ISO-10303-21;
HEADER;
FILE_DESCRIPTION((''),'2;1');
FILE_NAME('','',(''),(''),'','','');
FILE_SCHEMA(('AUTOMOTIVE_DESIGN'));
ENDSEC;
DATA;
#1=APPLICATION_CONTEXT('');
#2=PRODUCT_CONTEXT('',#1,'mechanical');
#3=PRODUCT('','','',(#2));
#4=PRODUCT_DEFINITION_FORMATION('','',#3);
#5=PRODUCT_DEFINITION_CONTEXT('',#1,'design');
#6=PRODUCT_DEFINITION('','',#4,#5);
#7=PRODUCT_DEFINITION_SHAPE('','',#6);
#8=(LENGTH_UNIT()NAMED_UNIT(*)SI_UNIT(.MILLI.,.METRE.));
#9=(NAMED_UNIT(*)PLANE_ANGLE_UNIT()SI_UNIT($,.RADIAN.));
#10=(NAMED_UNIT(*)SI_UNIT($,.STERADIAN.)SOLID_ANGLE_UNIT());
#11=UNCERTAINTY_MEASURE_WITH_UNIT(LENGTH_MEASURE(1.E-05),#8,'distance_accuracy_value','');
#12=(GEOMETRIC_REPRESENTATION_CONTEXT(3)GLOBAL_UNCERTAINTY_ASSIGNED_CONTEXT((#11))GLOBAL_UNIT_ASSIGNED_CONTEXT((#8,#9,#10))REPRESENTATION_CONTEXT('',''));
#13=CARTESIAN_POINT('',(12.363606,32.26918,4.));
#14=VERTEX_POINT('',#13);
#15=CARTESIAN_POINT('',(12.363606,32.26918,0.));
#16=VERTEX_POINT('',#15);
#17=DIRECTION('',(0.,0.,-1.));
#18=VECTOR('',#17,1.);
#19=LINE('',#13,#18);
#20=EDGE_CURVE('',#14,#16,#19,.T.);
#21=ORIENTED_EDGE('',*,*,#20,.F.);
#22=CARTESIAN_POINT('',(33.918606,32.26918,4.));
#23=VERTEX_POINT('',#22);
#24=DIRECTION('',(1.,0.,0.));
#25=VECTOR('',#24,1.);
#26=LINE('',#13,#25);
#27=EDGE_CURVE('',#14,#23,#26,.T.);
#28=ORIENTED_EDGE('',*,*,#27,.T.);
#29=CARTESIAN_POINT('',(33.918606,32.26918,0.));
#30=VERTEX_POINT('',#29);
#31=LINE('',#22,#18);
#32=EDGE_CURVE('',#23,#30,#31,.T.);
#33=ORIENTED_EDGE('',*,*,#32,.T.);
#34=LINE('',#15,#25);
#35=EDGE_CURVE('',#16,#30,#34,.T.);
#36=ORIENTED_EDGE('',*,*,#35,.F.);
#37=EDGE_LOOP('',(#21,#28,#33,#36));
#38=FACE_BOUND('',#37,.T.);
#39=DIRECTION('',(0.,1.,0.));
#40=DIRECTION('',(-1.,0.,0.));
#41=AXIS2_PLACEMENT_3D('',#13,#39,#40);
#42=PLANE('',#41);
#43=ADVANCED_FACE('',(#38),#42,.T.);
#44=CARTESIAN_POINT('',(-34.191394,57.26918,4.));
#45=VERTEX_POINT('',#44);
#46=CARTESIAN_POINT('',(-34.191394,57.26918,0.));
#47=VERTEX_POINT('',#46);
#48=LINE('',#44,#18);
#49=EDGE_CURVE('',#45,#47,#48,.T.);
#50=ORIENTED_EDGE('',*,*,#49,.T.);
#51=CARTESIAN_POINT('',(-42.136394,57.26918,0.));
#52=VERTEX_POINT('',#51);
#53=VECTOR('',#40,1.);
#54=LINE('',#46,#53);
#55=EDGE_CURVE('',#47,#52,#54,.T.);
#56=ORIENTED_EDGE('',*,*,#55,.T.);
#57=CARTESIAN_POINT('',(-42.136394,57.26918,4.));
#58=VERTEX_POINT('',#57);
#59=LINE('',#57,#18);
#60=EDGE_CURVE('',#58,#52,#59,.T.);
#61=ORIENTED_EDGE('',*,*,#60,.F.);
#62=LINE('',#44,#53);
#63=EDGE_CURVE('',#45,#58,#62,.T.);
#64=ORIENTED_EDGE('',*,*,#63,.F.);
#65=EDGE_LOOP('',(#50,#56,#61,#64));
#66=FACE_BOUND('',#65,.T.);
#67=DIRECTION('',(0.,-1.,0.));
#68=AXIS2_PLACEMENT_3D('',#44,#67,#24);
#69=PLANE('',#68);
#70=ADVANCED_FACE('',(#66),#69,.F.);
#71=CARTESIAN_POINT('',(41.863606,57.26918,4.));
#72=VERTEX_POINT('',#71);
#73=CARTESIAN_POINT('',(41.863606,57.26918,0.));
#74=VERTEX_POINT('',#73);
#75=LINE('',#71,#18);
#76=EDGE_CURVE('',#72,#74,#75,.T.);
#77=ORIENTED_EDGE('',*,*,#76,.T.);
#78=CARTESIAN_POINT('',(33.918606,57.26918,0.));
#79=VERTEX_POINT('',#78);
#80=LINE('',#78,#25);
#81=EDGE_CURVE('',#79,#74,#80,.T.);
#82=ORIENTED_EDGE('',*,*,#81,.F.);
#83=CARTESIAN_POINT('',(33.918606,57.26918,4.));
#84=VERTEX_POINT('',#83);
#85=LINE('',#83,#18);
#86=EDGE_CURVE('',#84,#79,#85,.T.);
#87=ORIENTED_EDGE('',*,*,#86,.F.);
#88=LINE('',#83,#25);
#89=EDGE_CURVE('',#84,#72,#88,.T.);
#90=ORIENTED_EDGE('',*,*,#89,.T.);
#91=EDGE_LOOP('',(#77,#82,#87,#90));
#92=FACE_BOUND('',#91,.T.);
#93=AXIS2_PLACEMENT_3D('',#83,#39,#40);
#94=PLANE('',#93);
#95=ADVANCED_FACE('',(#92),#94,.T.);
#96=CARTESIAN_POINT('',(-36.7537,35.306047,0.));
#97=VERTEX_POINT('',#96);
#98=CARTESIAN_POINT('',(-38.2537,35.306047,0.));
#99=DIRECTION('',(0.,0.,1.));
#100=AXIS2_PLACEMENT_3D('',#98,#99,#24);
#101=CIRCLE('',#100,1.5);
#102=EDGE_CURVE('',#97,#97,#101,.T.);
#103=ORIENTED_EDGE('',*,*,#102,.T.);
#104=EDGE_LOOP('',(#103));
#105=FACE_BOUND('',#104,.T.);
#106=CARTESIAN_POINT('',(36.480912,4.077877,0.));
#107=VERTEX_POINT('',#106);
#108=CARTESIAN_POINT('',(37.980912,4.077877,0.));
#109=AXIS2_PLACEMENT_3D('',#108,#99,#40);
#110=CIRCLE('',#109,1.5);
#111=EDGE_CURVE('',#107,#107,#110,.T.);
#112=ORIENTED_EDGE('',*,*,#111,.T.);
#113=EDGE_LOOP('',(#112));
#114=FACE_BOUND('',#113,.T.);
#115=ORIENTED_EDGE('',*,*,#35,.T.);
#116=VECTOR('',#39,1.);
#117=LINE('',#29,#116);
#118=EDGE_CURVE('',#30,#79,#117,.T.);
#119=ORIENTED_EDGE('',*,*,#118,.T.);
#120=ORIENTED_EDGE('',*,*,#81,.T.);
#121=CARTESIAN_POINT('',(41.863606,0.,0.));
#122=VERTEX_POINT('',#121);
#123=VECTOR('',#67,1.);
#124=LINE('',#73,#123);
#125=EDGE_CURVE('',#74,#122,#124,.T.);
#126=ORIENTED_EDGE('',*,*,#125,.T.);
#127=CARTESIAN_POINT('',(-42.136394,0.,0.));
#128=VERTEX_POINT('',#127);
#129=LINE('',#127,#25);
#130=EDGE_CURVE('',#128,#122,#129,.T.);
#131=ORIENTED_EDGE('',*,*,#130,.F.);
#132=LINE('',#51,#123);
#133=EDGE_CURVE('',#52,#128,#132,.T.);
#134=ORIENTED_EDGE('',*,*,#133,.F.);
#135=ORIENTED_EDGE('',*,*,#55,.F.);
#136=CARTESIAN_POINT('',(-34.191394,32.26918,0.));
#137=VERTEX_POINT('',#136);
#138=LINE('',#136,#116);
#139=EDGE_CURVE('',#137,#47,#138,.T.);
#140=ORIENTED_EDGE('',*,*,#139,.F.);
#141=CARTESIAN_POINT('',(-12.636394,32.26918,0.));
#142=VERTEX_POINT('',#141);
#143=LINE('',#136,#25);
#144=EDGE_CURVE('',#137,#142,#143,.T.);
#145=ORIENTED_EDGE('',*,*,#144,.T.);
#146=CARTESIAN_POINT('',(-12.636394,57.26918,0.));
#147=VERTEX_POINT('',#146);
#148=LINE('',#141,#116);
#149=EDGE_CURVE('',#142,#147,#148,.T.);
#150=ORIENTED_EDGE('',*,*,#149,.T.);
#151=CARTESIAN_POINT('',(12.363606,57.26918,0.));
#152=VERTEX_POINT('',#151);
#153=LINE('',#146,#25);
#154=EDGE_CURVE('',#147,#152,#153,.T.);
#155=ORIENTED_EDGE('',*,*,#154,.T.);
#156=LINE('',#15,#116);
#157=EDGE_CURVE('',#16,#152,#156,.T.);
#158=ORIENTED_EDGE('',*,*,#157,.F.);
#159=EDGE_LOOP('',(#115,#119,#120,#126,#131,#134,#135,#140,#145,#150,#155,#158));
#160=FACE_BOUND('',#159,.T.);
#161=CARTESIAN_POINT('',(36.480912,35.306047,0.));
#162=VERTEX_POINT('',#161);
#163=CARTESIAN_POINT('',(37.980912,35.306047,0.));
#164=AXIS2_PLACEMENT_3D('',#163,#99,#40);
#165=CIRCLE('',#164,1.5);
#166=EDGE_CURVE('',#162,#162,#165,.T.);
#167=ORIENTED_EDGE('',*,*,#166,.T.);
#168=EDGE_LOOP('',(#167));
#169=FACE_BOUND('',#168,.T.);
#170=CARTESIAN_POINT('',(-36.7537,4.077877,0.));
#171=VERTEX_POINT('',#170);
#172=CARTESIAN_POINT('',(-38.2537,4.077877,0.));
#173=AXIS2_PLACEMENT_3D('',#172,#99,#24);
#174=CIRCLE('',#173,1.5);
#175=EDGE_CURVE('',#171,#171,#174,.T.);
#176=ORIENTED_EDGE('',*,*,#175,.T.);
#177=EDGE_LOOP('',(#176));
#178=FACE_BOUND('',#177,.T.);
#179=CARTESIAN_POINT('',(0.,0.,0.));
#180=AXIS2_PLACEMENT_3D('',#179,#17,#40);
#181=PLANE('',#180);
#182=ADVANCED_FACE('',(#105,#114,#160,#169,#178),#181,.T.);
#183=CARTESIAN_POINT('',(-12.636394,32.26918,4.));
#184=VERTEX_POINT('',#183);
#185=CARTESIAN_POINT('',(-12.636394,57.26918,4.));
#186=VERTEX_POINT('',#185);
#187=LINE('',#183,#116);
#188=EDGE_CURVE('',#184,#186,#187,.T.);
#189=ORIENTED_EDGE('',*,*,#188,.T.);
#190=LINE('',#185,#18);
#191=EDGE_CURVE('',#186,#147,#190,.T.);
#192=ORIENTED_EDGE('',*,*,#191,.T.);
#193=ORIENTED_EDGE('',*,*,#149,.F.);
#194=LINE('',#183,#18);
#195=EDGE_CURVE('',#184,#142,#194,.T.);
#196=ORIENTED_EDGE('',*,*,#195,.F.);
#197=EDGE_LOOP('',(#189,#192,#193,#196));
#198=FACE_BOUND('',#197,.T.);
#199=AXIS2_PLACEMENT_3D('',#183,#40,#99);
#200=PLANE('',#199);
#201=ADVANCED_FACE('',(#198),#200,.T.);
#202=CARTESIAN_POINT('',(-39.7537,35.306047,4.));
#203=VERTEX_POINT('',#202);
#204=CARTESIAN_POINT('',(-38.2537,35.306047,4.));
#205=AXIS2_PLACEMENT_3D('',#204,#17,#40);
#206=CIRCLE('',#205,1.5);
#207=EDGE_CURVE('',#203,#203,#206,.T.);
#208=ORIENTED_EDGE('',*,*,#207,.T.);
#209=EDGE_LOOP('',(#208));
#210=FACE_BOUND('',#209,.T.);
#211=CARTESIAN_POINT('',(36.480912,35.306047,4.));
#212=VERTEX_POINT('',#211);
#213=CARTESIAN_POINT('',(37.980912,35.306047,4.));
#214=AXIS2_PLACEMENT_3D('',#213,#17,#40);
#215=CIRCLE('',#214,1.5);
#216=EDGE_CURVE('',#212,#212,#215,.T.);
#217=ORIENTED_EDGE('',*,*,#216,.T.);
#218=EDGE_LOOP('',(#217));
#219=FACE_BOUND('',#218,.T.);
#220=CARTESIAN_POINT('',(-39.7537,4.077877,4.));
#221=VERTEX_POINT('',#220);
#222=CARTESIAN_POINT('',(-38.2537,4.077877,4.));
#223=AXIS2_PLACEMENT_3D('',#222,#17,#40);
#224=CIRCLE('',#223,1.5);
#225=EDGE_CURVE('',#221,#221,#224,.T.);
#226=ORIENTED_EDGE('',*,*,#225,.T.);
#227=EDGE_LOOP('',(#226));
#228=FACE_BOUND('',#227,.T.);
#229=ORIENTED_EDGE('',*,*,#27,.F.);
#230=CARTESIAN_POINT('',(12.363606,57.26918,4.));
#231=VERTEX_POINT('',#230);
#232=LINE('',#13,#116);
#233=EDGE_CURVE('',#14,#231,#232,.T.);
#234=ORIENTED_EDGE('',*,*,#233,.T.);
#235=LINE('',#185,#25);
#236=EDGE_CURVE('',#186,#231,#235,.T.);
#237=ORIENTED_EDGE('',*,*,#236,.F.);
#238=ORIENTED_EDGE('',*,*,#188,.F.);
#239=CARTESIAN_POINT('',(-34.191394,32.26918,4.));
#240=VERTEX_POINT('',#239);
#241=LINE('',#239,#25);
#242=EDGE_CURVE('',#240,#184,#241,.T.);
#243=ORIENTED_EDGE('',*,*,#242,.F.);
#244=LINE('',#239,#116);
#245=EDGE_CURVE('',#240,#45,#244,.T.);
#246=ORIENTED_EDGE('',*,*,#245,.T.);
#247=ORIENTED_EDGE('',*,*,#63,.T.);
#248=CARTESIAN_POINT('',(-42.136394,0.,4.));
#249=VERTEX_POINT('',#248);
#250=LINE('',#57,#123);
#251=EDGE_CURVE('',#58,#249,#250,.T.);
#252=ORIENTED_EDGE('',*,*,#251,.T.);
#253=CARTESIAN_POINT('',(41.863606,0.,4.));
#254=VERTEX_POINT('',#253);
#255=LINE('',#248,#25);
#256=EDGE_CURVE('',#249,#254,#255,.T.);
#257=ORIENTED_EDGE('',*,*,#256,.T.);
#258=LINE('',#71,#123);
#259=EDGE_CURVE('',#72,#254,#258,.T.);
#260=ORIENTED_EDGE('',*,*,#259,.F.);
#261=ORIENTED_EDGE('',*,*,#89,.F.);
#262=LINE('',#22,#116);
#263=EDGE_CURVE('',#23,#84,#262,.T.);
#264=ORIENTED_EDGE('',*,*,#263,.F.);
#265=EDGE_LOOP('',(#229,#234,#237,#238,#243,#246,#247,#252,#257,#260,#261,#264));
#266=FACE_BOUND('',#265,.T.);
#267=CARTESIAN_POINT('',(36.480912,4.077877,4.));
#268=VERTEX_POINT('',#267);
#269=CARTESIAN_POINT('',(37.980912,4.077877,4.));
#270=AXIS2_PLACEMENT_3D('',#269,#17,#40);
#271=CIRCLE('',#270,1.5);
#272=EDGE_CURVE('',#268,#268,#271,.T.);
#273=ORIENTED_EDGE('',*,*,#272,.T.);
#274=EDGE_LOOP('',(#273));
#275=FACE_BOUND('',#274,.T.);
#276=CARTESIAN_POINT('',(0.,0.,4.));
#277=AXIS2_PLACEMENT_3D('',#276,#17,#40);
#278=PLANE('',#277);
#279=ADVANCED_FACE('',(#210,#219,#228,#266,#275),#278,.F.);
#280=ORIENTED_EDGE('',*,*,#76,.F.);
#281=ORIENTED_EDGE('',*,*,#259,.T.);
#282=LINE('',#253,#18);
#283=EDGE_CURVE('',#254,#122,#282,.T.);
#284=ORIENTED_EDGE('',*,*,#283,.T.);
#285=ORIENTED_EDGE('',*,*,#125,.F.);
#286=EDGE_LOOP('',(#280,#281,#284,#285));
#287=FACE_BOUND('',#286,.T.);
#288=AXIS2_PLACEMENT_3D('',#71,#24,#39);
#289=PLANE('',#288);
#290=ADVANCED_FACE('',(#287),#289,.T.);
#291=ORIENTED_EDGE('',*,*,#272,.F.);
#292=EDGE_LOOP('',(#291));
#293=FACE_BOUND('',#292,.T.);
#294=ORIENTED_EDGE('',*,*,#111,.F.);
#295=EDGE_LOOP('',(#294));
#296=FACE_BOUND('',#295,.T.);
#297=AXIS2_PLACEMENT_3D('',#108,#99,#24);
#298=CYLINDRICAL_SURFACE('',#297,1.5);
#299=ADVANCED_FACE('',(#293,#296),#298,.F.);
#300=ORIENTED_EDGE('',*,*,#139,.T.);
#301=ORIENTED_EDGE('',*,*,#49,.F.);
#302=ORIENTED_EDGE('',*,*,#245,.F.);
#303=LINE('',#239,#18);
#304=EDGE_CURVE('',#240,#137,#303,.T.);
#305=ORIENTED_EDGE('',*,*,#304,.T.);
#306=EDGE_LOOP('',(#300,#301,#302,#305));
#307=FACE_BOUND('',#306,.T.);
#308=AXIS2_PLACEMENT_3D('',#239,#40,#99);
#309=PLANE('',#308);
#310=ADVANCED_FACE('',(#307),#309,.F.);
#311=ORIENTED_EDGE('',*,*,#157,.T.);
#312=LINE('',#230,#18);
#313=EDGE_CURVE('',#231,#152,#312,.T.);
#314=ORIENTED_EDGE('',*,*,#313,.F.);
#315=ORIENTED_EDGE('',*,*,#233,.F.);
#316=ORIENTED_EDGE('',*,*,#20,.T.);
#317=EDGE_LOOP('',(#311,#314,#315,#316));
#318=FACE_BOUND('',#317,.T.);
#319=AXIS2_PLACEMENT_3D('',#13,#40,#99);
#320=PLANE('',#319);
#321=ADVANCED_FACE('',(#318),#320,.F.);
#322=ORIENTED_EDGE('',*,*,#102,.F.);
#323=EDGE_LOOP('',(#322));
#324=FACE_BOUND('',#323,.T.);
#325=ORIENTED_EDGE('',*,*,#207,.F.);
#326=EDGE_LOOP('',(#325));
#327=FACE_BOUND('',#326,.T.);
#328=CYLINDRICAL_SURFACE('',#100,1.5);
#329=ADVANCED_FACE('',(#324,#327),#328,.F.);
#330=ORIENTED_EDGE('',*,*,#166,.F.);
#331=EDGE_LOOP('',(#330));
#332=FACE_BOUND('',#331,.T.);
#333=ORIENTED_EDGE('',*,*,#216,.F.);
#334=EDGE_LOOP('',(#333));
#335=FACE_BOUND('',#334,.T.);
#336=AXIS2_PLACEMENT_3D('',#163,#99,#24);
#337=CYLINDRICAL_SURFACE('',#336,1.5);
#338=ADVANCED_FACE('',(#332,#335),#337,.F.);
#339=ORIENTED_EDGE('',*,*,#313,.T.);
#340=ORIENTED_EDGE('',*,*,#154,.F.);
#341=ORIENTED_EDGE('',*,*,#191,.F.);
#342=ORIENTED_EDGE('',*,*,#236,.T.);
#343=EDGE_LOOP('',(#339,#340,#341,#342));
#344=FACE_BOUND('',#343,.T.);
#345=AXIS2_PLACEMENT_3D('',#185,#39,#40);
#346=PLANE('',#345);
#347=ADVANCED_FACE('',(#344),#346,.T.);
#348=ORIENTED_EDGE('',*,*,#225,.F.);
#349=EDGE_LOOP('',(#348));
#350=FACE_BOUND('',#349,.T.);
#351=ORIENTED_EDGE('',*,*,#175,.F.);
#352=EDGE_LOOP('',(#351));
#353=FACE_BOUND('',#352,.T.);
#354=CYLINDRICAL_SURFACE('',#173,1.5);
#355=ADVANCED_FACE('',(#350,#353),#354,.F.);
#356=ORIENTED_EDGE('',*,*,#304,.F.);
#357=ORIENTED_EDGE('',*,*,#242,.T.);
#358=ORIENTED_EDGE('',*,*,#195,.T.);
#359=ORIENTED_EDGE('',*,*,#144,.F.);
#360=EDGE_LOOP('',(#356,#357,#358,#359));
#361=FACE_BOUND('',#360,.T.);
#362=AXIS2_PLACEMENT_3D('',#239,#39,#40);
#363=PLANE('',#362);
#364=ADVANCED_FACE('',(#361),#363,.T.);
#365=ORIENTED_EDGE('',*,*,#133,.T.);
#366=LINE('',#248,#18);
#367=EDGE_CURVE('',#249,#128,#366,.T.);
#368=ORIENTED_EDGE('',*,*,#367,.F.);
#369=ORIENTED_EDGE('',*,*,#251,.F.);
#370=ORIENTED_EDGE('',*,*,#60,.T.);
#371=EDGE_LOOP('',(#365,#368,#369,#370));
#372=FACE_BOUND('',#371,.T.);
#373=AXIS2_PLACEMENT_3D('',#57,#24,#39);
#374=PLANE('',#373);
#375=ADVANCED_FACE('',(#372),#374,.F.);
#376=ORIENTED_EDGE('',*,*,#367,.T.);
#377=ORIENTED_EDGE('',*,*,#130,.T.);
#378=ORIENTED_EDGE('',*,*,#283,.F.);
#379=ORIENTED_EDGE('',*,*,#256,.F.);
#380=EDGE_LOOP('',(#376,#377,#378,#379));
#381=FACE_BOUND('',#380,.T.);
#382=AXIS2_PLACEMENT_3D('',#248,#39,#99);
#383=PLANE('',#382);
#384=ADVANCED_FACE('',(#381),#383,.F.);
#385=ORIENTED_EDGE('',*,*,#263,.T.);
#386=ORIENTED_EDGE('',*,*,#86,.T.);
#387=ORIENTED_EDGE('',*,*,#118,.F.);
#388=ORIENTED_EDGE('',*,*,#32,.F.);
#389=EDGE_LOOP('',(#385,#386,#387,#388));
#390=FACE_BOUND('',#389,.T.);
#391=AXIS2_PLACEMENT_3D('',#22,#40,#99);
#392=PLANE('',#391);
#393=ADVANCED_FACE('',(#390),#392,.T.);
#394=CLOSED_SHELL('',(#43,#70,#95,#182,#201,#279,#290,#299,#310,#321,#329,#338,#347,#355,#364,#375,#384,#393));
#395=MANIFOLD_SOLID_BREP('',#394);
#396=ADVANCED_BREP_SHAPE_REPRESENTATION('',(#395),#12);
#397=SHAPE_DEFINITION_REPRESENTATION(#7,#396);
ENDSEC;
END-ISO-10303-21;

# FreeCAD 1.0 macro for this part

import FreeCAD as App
import Part
import Sketcher
Q = App.Units.Quantity

doc = App.newDocument("Part")
params = doc.addObject("Spreadsheet::Sheet", "Params")
for row, (alias, value) in enumerate([
    ("sketch1_width", "84 mm"),
    ("sketch1_width2", "25 mm"),
    ("pad1_length", "4 mm"),
    ("sketch2_diameter", "3 mm"),
], start=1):
    params.set(f"A{row}", alias)
    params.set(f"B{row}", "=" + value)
    params.setAlias(f"B{row}", alias)

body = doc.addObject("PartDesign::Body", "Body")

# Sketch on XY plane
sketch1 = body.newObject("Sketcher::SketchObject", "Sketch")
sketch1.AttachmentSupport = (doc.getObject("XY_Plane"), [""])
sketch1.MapMode = "FlatFace"
sketch1.addGeometry(Part.LineSegment(App.Vector(-42, 0, 0), App.Vector(42, 0, 0)), False)
sketch1.addGeometry(Part.LineSegment(App.Vector(42, 0, 0), App.Vector(42, 57, 0)), False)
sketch1.addGeometry(Part.LineSegment(App.Vector(42, 57, 0), App.Vector(34, 57, 0)), False)
sketch1.addGeometry(Part.LineSegment(App.Vector(34, 57, 0), App.Vector(34, 32, 0)), False)
sketch1.addGeometry(Part.LineSegment(App.Vector(34, 32, 0), App.Vector(12, 32, 0)), False)
sketch1.addGeometry(Part.LineSegment(App.Vector(12, 32, 0), App.Vector(12, 57, 0)), False)
sketch1.addGeometry(Part.LineSegment(App.Vector(12, 57, 0), App.Vector(-13, 57, 0)), False)
sketch1.addGeometry(Part.LineSegment(App.Vector(-13, 57, 0), App.Vector(-13, 32, 0)), False)
sketch1.addGeometry(Part.LineSegment(App.Vector(-13, 32, 0), App.Vector(-34, 32, 0)), False)
sketch1.addGeometry(Part.LineSegment(App.Vector(-34, 32, 0), App.Vector(-34, 57, 0)), False)
sketch1.addGeometry(Part.LineSegment(App.Vector(-34, 57, 0), App.Vector(-42, 57, 0)), False)
sketch1.addGeometry(Part.LineSegment(App.Vector(-42, 57, 0), App.Vector(-42, 0, 0)), False)
sketch1.addConstraint(Sketcher.Constraint("Coincident", 0, 2, 1, 1))
sketch1.addConstraint(Sketcher.Constraint("Coincident", 1, 2, 2, 1))
sketch1.addConstraint(Sketcher.Constraint("Coincident", 2, 2, 3, 1))
sketch1.addConstraint(Sketcher.Constraint("Coincident", 3, 2, 4, 1))
sketch1.addConstraint(Sketcher.Constraint("Coincident", 4, 2, 5, 1))
sketch1.addConstraint(Sketcher.Constraint("Coincident", 5, 2, 6, 1))
sketch1.addConstraint(Sketcher.Constraint("Coincident", 6, 2, 7, 1))
sketch1.addConstraint(Sketcher.Constraint("Coincident", 7, 2, 8, 1))
sketch1.addConstraint(Sketcher.Constraint("Coincident", 8, 2, 9, 1))
sketch1.addConstraint(Sketcher.Constraint("Coincident", 9, 2, 10, 1))
sketch1.addConstraint(Sketcher.Constraint("Coincident", 10, 2, 11, 1))
sketch1.addConstraint(Sketcher.Constraint("Coincident", 11, 2, 0, 1))
sketch1.addConstraint(Sketcher.Constraint("Horizontal", 0))
sketch1.addConstraint(Sketcher.Constraint("Vertical", 1))
sketch1.addConstraint(Sketcher.Constraint("Horizontal", 2))
sketch1.addConstraint(Sketcher.Constraint("Vertical", 3))
sketch1.addConstraint(Sketcher.Constraint("Horizontal", 4))
sketch1.addConstraint(Sketcher.Constraint("Vertical", 5))
sketch1.addConstraint(Sketcher.Constraint("Horizontal", 6))
sketch1.addConstraint(Sketcher.Constraint("Vertical", 7))
sketch1.addConstraint(Sketcher.Constraint("Horizontal", 8))
sketch1.addConstraint(Sketcher.Constraint("Vertical", 9))
sketch1.addConstraint(Sketcher.Constraint("Horizontal", 10))
sketch1.addConstraint(Sketcher.Constraint("Vertical", 11))
sketch1.addConstraint(Sketcher.Constraint("PointOnObject", 0, 2, -1))
sketch1.addConstraint(Sketcher.Constraint("Horizontal", 2, 2, 5, 2))
sketch1.addConstraint(Sketcher.Constraint("Horizontal", 4, 2, 7, 2))
sketch1.addConstraint(Sketcher.Constraint("Horizontal", 6, 2, 9, 2))
sketch1.addConstraint(Sketcher.Constraint("Equal", 4, 8))
sketch1.addConstraint(Sketcher.Constraint("Equal", 2, 10))
sketch1.addConstraint(Sketcher.Constraint("Equal", 6, 3))
sketch1.addConstraint(Sketcher.Constraint("DistanceX", 0, 1, 0, 2, Q("84 mm")))
sketch1.addConstraint(Sketcher.Constraint("DistanceX", 6, 2, 6, 1, Q("25 mm")))
sketch1.addConstraint(Sketcher.Constraint("DistanceX", 2, 2, 2, 1, Q("7.945 mm")))
sketch1.addConstraint(Sketcher.Constraint("DistanceY", 1, 1, 1, 2, Q("57.26918 mm")))
sketch1.addConstraint(Sketcher.Constraint("DistanceX", -1, 1, 0, 2, Q("41.863606 mm")))
sketch1.setExpression("Constraints[31]", "Params.sketch1_width")
sketch1.setExpression("Constraints[32]", "Params.sketch1_width2")
pad1 = body.newObject("PartDesign::Pad", "Pad")
pad1.Profile = sketch1
pad1.setExpression("Length", "Params.pad1_length")

# Sketch on XY plane
sketch2 = body.newObject("Sketcher::SketchObject", "Sketch001")
sketch2.AttachmentSupport = (doc.getObject("XY_Plane"), [""])
sketch2.MapMode = "FlatFace"
sketch2.AttachmentOffset = App.Placement(App.Vector(0, 0, 4), App.Rotation())
sketch2.addGeometry(Part.Circle(App.Vector(-38.3, 4.1, 0), App.Vector(0, 0, 1), 1.5), False)
sketch2.addGeometry(Part.Circle(App.Vector(-38.3, 35.3, 0), App.Vector(0, 0, 1), 1.5), False)
sketch2.addGeometry(Part.Circle(App.Vector(38, 35.3, 0), App.Vector(0, 0, 1), 1.5), False)
sketch2.addGeometry(Part.Circle(App.Vector(38, 4.1, 0), App.Vector(0, 0, 1), 1.5), False)
sketch2.addConstraint(Sketcher.Constraint("Equal", 0, 1))
sketch2.addConstraint(Sketcher.Constraint("Equal", 1, 2))
sketch2.addConstraint(Sketcher.Constraint("Equal", 2, 3))
sketch2.addConstraint(Sketcher.Constraint("Horizontal", 1, 3, 2, 3))
sketch2.addConstraint(Sketcher.Constraint("Horizontal", 0, 3, 3, 3))
sketch2.addConstraint(Sketcher.Constraint("Vertical", 0, 3, 1, 3))
sketch2.addConstraint(Sketcher.Constraint("Vertical", 2, 3, 3, 3))
sketch2.addConstraint(Sketcher.Constraint("Diameter", 0, Q("3 mm")))
sketch2.addConstraint(Sketcher.Constraint("DistanceX", 0, 3, -1, 1, Q("38.2537 mm")))
sketch2.addConstraint(Sketcher.Constraint("DistanceX", -1, 1, 2, 3, Q("37.980912 mm")))
sketch2.addConstraint(Sketcher.Constraint("DistanceY", 0, 3, 1, 3, Q("31.22817 mm")))
sketch2.addConstraint(Sketcher.Constraint("DistanceY", -1, 1, 0, 3, Q("4.077877 mm")))
sketch2.setExpression("Constraints[7]", "Params.sketch2_diameter")
pocket1 = body.newObject("PartDesign::Pocket", "Pocket")
pocket1.Profile = sketch2
pocket1.Type = "ThroughAll"
pocket1.Midplane = True

doc.recompute()
